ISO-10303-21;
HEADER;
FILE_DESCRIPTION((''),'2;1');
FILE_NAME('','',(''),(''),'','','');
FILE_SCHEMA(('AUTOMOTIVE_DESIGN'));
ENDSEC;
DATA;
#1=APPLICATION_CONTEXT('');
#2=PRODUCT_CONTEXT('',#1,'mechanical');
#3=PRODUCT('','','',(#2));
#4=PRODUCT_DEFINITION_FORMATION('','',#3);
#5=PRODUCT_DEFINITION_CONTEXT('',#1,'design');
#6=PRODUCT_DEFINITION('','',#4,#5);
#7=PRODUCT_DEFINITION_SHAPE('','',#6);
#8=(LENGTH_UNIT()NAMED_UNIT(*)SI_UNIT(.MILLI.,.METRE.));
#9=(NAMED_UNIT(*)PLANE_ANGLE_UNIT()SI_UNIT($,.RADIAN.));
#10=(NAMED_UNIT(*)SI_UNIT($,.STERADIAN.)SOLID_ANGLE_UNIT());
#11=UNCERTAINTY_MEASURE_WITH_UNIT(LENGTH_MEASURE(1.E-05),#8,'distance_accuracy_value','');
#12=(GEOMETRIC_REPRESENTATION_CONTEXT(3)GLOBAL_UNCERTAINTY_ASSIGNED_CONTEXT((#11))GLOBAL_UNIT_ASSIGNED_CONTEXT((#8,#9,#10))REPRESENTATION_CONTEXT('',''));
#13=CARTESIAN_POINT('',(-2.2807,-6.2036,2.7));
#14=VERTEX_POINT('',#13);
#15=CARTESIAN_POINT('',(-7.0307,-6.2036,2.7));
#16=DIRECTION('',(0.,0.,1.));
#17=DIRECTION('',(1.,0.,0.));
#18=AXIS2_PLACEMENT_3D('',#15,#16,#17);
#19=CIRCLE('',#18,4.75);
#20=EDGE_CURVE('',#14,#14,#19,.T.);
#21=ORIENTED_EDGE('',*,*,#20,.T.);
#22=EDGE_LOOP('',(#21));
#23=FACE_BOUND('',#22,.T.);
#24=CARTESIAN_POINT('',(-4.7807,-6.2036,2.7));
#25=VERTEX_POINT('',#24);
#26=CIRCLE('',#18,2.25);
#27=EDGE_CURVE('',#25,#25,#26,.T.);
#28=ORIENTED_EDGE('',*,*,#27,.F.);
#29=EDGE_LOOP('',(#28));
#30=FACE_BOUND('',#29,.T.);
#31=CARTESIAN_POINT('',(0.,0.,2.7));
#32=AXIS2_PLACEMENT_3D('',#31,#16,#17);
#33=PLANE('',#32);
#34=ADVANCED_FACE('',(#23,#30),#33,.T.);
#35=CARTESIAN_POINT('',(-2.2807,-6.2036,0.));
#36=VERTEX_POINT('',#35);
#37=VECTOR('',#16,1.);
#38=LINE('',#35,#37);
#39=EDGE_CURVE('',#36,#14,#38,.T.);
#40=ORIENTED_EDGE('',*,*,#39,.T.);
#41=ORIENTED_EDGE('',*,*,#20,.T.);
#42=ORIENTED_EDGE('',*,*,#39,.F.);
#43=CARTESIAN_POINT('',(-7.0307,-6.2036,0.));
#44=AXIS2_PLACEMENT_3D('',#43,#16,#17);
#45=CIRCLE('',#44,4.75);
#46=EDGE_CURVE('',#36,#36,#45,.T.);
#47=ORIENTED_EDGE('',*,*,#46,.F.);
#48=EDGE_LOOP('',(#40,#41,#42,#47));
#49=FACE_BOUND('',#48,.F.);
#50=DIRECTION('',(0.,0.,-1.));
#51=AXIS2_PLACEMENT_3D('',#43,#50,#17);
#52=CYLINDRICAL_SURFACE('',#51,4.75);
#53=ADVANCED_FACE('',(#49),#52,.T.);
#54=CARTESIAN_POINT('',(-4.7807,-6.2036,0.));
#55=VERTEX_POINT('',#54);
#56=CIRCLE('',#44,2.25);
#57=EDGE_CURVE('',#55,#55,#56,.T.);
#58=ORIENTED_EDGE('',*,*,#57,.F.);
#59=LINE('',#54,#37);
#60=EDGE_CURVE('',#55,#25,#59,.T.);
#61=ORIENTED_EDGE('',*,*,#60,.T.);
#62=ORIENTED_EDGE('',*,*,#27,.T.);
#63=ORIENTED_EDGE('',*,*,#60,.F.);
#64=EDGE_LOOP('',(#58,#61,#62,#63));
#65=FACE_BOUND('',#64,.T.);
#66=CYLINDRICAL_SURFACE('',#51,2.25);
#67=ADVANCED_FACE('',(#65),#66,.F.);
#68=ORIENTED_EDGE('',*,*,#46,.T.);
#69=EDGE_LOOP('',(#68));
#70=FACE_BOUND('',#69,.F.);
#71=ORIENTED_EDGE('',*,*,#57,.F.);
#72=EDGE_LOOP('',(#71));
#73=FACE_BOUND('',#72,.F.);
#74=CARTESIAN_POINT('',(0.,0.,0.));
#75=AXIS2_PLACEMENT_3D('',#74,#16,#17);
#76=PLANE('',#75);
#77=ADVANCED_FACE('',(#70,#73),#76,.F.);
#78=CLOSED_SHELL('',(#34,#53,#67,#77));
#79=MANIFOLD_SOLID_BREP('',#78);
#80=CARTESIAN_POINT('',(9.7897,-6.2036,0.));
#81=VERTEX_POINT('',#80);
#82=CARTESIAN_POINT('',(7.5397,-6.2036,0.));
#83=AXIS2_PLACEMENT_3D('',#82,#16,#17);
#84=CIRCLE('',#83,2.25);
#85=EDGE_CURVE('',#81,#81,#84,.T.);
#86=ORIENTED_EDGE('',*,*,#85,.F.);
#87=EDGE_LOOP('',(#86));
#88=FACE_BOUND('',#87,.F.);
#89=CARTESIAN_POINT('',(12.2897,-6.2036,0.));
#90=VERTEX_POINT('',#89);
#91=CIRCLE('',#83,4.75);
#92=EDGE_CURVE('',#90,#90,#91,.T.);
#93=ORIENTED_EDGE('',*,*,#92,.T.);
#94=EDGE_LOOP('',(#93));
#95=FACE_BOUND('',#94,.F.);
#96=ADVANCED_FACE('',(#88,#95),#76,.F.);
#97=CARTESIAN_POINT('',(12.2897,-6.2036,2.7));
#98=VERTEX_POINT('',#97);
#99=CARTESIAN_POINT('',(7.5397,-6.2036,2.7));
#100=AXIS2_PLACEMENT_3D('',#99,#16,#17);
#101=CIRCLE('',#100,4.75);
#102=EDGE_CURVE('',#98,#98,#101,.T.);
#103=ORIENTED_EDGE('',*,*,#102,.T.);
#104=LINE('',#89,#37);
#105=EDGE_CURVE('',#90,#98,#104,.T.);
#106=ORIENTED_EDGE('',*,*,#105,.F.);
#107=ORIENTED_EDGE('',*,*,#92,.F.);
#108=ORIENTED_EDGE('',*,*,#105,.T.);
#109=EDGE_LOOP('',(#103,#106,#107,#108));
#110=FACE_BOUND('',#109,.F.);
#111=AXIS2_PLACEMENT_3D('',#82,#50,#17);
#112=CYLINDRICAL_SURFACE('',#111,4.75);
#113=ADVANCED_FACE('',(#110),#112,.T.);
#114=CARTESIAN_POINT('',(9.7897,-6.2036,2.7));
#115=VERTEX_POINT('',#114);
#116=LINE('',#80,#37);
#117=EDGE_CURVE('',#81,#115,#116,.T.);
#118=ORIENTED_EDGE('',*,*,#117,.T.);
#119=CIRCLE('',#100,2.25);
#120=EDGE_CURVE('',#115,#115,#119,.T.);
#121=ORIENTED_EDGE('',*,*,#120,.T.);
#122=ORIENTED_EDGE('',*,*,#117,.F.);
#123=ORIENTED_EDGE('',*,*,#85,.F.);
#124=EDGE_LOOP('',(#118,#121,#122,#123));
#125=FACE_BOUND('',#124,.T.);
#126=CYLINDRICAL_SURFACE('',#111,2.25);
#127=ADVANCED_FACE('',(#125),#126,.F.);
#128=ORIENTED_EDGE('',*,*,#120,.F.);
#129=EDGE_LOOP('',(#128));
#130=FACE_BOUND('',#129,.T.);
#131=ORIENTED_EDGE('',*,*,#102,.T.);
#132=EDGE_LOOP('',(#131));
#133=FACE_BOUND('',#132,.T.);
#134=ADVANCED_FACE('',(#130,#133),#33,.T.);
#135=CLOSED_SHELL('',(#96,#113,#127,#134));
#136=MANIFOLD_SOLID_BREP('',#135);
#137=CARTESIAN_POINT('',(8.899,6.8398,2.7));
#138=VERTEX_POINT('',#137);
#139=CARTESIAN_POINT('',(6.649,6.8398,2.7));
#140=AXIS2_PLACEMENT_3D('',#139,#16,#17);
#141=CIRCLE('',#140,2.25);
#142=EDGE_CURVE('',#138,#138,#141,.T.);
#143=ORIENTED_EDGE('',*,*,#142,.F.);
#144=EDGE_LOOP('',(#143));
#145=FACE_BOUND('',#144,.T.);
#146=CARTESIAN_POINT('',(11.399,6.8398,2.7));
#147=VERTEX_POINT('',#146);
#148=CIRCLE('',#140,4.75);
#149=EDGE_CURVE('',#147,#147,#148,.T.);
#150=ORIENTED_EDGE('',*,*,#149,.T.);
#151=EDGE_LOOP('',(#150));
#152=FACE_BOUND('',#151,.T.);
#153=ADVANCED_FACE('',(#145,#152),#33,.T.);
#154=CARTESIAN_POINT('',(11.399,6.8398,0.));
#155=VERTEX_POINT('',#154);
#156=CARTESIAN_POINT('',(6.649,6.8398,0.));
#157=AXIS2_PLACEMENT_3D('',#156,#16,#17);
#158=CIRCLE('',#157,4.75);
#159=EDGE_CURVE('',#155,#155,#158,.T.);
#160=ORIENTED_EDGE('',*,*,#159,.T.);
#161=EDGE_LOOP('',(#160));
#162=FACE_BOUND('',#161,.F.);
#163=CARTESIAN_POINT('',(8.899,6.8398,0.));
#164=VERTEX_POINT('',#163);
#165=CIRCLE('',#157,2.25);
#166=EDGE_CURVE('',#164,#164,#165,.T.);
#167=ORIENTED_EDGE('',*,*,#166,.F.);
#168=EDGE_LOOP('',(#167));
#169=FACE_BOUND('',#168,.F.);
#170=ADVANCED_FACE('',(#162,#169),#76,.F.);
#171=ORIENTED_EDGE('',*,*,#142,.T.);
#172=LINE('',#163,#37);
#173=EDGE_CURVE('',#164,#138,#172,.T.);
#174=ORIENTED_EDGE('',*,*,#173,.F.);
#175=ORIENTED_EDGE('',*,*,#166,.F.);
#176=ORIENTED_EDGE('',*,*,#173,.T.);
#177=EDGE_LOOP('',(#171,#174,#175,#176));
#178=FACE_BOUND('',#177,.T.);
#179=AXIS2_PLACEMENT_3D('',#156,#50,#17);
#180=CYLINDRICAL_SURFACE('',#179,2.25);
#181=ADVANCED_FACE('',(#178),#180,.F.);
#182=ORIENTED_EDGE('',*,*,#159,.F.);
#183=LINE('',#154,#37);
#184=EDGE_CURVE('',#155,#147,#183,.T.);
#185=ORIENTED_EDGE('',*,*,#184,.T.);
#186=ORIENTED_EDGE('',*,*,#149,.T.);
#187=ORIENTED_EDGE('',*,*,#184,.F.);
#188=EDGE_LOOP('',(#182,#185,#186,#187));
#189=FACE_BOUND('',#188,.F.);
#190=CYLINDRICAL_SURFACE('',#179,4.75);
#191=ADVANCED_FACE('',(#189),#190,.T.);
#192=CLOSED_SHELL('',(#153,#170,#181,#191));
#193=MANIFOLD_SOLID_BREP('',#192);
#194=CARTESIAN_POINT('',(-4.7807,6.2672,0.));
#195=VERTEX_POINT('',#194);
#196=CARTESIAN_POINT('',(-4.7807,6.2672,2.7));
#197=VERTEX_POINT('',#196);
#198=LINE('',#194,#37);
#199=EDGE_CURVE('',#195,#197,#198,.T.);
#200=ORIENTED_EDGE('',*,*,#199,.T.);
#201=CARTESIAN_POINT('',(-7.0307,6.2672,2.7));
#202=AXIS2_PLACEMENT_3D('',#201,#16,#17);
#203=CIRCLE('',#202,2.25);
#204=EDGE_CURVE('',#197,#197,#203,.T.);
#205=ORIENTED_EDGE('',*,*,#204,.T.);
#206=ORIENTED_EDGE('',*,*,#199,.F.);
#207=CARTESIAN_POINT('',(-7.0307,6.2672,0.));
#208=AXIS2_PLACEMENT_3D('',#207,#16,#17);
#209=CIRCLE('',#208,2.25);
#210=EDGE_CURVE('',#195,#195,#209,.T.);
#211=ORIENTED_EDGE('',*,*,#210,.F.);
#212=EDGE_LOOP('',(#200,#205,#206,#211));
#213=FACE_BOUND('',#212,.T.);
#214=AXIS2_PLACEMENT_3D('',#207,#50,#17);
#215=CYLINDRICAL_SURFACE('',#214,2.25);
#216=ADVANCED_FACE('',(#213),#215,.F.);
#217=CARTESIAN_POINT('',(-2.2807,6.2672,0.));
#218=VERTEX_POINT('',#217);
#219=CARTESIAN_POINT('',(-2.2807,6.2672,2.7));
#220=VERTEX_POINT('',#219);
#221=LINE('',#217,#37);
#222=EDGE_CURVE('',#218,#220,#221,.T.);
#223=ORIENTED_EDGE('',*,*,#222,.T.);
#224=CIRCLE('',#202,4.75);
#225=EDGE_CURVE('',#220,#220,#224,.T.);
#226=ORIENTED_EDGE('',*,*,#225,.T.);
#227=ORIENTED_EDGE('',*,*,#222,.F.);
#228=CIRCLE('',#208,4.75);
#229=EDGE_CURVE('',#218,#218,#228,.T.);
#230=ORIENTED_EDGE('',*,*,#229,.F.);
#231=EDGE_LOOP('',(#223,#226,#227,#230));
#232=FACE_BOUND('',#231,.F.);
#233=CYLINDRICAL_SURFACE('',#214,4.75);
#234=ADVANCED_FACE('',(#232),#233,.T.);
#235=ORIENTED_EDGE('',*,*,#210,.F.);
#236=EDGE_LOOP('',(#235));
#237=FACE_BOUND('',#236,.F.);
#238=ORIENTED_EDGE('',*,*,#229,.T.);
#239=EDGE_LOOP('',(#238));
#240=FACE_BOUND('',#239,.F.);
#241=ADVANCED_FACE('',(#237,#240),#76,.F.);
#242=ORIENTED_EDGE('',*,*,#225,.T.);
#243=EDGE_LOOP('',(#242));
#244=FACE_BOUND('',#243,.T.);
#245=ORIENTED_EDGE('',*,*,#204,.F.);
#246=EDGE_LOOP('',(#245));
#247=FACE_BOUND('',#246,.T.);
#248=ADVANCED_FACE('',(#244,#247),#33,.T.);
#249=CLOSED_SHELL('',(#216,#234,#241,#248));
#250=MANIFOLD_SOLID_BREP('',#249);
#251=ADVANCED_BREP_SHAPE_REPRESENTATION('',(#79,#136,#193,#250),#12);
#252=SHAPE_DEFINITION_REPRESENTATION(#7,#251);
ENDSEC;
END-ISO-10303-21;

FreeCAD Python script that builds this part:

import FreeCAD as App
import Part
import Sketcher
from FreeCAD import Vector
Q = App.Units.Quantity

doc = App.newDocument("Part")
params = doc.addObject("Spreadsheet::Sheet", "Params")
for row, (alias, value) in enumerate([
    ("sketch1_diameter", "4.5 mm"),
    ("sketch1_diameter2", "9.5 mm"),
    ("pad1_length", "2.7 mm"),
], start=1):
    params.set(f"A{row}", alias)
    params.set(f"B{row}", "=" + value)
    params.setAlias(f"B{row}", alias)

body = doc.addObject("PartDesign::Body", "Body")
body.AllowCompound = True

# Sketch on XY plane
sketch1 = body.newObject("Sketcher::SketchObject", "Sketch")
sketch1.AttachmentSupport = (doc.getObject("XY_Plane"), [""])
sketch1.MapMode = "FlatFace"
sketch1.addGeometry([
    Part.Circle(Vector(-7, 6.3, 0), Vector(0, 0, 1), 4.8),  # 0
    Part.Circle(Vector(-7, 6.3, 0), Vector(0, 0, 1), 2.2),  # 1
    Part.Circle(Vector(6.6, 6.8, 0), Vector(0, 0, 1), 4.8),  # 2
    Part.Circle(Vector(6.6, 6.8, 0), Vector(0, 0, 1), 2.2),  # 3
    Part.Circle(Vector(-7, -6.2, 0), Vector(0, 0, 1), 4.8),  # 4
    Part.Circle(Vector(-7, -6.2, 0), Vector(0, 0, 1), 2.2),  # 5
    Part.Circle(Vector(7.5, -6.2, 0), Vector(0, 0, 1), 4.8),  # 6
    Part.Circle(Vector(7.5, -6.2, 0), Vector(0, 0, 1), 2.2),  # 7
], False)
sketch1.addConstraint([
    Sketcher.Constraint("Coincident", 1, 3, 0, 3),
    Sketcher.Constraint("Coincident", 3, 3, 2, 3),
    Sketcher.Constraint("Coincident", 5, 3, 4, 3),
    Sketcher.Constraint("Coincident", 7, 3, 6, 3),
    Sketcher.Constraint("Equal", 0, 2),
    Sketcher.Constraint("Equal", 1, 3),
    Sketcher.Constraint("Equal", 2, 4),
    Sketcher.Constraint("Equal", 3, 5),
    Sketcher.Constraint("Equal", 4, 6),
    Sketcher.Constraint("Equal", 5, 7),
    Sketcher.Constraint("Horizontal", 5, 3, 6, 3),
    Sketcher.Constraint("Vertical", 1, 3, 4, 3),
    Sketcher.Constraint("Diameter", 1, Q("4.5 mm")),
    Sketcher.Constraint("Diameter", 0, Q("9.5 mm")),
    Sketcher.Constraint("DistanceX", -1, 1, 2, 3, Q("6.649 mm")),
    Sketcher.Constraint("DistanceX", 0, 3, -1, 1, Q("7.0307 mm")),
    Sketcher.Constraint("DistanceY", -1, 1, 0, 3, Q("6.2672 mm")),
    Sketcher.Constraint("DistanceY", -1, 1, 2, 3, Q("6.8398 mm")),
    Sketcher.Constraint("DistanceY", 4, 3, -1, 1, Q("6.2036 mm")),
    Sketcher.Constraint("DistanceX", -1, 1, 6, 3, Q("7.5397 mm")),
])
sketch1.setExpression("Constraints[12]", "Params.sketch1_diameter")
sketch1.setExpression("Constraints[13]", "Params.sketch1_diameter2")
pad1 = body.newObject("PartDesign::Pad", "Pad")
pad1.Profile = sketch1
pad1.setExpression("Length", "Params.pad1_length")

doc.recompute()
